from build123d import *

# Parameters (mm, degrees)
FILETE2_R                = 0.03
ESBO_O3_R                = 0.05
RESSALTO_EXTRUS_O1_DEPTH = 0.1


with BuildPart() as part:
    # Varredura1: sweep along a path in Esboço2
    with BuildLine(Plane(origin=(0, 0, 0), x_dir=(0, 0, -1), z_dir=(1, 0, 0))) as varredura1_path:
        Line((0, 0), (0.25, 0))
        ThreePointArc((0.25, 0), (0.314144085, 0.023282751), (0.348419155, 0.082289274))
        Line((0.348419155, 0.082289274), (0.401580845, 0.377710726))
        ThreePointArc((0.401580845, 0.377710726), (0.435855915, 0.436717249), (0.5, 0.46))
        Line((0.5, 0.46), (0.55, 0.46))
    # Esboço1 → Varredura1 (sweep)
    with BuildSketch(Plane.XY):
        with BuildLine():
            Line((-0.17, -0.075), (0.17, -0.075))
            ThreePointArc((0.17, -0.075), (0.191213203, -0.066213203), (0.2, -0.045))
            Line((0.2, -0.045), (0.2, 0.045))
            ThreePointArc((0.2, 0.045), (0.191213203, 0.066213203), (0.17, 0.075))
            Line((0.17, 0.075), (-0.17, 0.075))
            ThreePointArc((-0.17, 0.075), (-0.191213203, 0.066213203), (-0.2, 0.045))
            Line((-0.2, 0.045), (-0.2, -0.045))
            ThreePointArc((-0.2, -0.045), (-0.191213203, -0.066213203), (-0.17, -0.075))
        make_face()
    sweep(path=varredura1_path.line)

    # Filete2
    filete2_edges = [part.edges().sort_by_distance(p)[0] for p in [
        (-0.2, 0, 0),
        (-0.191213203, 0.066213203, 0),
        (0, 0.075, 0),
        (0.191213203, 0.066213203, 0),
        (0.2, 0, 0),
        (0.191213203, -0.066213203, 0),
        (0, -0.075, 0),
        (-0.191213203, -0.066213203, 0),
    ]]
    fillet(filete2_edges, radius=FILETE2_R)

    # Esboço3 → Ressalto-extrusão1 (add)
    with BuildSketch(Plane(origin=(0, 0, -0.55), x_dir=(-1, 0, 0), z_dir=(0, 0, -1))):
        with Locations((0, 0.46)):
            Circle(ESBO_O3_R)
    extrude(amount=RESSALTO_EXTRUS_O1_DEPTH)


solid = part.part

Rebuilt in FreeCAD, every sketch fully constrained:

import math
import FreeCAD as App
import Part
import Sketcher
Q = App.Units.Quantity


def edges_at(feature, points):
    """Names of the edges that pass closest to the given points."""
    edges = feature.Shape.Edges
    near = lambda p: min(range(len(edges)), key=lambda i: edges[i].distToShape(Part.Vertex(*p))[0])
    return sorted({f"Edge{near(p) + 1}" for p in points})

doc = App.newDocument("Part")
params = doc.addObject("Spreadsheet::Sheet", "Params")
for row, (alias, value) in enumerate([
    ("sketch1_radius", "0.03 mm"),
    ("sketch1_width", "0.34 mm"),
    ("sketch1_height", "0.09 mm"),
    ("sketch2_radius", "0.1 mm"),
    ("sketch2_height", "0.25 mm"),
    ("sketch2_height2", "0.05 mm"),
    ("fillet_radius", "0.03 mm"),
    ("sketch3_diameter", "0.1 mm"),
    ("pad1_length", "0.1 mm"),
], start=1):
    params.set(f"A{row}", alias)
    params.set(f"B{row}", "=" + value)
    params.setAlias(f"B{row}", alias)

body = doc.addObject("PartDesign::Body", "Body")

# Sketch on XY plane
sketch1 = body.newObject("Sketcher::SketchObject", "Sketch")
sketch1.AttachmentSupport = (doc.getObject("XY_Plane"), [""])
sketch1.MapMode = "FlatFace"
sketch1.addGeometry([
    Part.LineSegment(App.Vector(-0.17, -0.075, 0), App.Vector(0.17, -0.075, 0)),  # 0
    Part.ArcOfCircle(Part.Circle(App.Vector(0.17, -0.045, 0), App.Vector(0, 0, 1), 0.03), math.radians(-89.999998), math.radians(-0.000002)),  # 1
    Part.LineSegment(App.Vector(0.2, -0.045, 0), App.Vector(0.2, 0.045, 0)),  # 2
    Part.ArcOfCircle(Part.Circle(App.Vector(0.17, 0.045, 0), App.Vector(0, 0, 1), 0.03), math.radians(0.000002), math.radians(89.999998)),  # 3
    Part.LineSegment(App.Vector(0.17, 0.075, 0), App.Vector(-0.17, 0.075, 0)),  # 4
    Part.ArcOfCircle(Part.Circle(App.Vector(-0.17, 0.045, 0), App.Vector(0, 0, 1), 0.03), math.radians(90.000002), math.radians(179.999998)),  # 5
    Part.LineSegment(App.Vector(-0.2, 0.045, 0), App.Vector(-0.2, -0.045, 0)),  # 6
    Part.ArcOfCircle(Part.Circle(App.Vector(-0.17, -0.045, 0), App.Vector(0, 0, 1), 0.03), math.radians(-179.999998), math.radians(-90.000002)),  # 7
], False)
sketch1.addConstraint([
    Sketcher.Constraint("Tangent", 0, 2, 1, 1),
    Sketcher.Constraint("Tangent", 1, 2, 2, 1),
    Sketcher.Constraint("Tangent", 2, 2, 3, 1),
    Sketcher.Constraint("Tangent", 3, 2, 4, 1),
    Sketcher.Constraint("Tangent", 4, 2, 5, 1),
    Sketcher.Constraint("Tangent", 5, 2, 6, 1),
    Sketcher.Constraint("Tangent", 6, 2, 7, 1),
    Sketcher.Constraint("Tangent", 7, 2, 0, 1),
    Sketcher.Constraint("Horizontal", 0),
    Sketcher.Constraint("Vertical", 2),
    Sketcher.Constraint("Horizontal", 4),
    Sketcher.Constraint("Vertical", 6),
    Sketcher.Constraint("Equal", 1, 3),
    Sketcher.Constraint("Equal", 3, 5),
    Sketcher.Constraint("Equal", 5, 7),
    Sketcher.Constraint("Symmetric", 1, 3, 5, 3, -1, 1),
    Sketcher.Constraint("Radius", 1, Q("0.03 mm")),
    Sketcher.Constraint("DistanceX", 0, 1, 0, 2, Q("0.34 mm")),
    Sketcher.Constraint("DistanceY", 2, 1, 2, 2, Q("0.09 mm")),
])
sketch1.setExpression("Constraints[16]", "Params.sketch1_radius")
sketch1.setExpression("Constraints[17]", "Params.sketch1_width")
sketch1.setExpression("Constraints[18]", "Params.sketch1_height")

# Sketch on YZ plane
sketch2 = body.newObject("Sketcher::SketchObject", "Sketch001")
sketch2.AttachmentSupport = (doc.getObject("YZ_Plane"), [""])
sketch2.MapMode = "FlatFace"
sketch2.addGeometry([
    Part.LineSegment(App.Vector(0, 0, 0), App.Vector(0, -0.25, 0)),  # 0
    Part.ArcOfCircle(Part.Circle(App.Vector(0.1, -0.25, 0), App.Vector(0, 0, 1), 0.1), math.radians(180), math.radians(259.798689)),  # 1
    Part.LineSegment(App.Vector(0.082289, -0.348419, 0), App.Vector(0.377711, -0.401581, 0)),  # 2
    Part.ArcOfCircle(Part.Circle(App.Vector(0.36, -0.5, 0), App.Vector(0, 0, 1), 0.1), math.radians(0), math.radians(79.798689)),  # 3
    Part.LineSegment(App.Vector(0.46, -0.5, 0), App.Vector(0.46, -0.55, 0)),  # 4
], False)
sketch2.addConstraint([
    Sketcher.Constraint("Tangent", 0, 2, 1, 1),
    Sketcher.Constraint("Tangent", 1, 2, 2, 1),
    Sketcher.Constraint("Tangent", 2, 2, 3, 2),
    Sketcher.Constraint("Tangent", 3, 1, 4, 1),
    Sketcher.Constraint("Vertical", 0),
    Sketcher.Constraint("Vertical", 4),
    Sketcher.Constraint("Coincident", 0, 1, -1, 1),
    Sketcher.Constraint("Equal", 1, 3),
    Sketcher.Constraint("Radius", 1, Q("0.1 mm")),
    Sketcher.Constraint("DistanceY", 0, 2, 0, 1, Q("0.25 mm")),
    Sketcher.Constraint("DistanceY", 4, 2, 4, 1, Q("0.05 mm")),
    Sketcher.Constraint("DistanceY", 3, 3, -1, 1, Q("0.5 mm")),
    Sketcher.Constraint("DistanceX", -1, 1, 3, 3, Q("0.36 mm")),
])
sketch2.setExpression("Constraints[8]", "Params.sketch2_radius")
sketch2.setExpression("Constraints[9]", "Params.sketch2_height")
sketch2.setExpression("Constraints[10]", "Params.sketch2_height2")
doc.recompute()

additivepipe = body.newObject("PartDesign::AdditivePipe", "AdditivePipe")
additivepipe.Profile = sketch1
additivepipe.Spine = (sketch2, ["Edge1", "Edge2", "Edge3", "Edge4", "Edge5"])
doc.recompute()

fillet = body.newObject("PartDesign::Fillet", "Fillet")
fillet.Base = (additivepipe, edges_at(additivepipe, [
    (-0.2, 0, 0),
    (-0.191, 0.066, 0),
    (0, 0.075, 0),
    (0.191, 0.066, 0),
    (0.2, 0, 0),
    (0.191, -0.066, 0),
    (0, -0.075, 0),
    (-0.191, -0.066, 0),
]))
fillet.setExpression("Radius", "Params.fillet_radius")

# Sketch on XY plane
sketch3 = body.newObject("Sketcher::SketchObject", "Sketch002")
sketch3.AttachmentSupport = (doc.getObject("XY_Plane"), [""])
sketch3.MapMode = "FlatFace"
sketch3.AttachmentOffset = App.Placement(App.Vector(0, 0, -0.55), App.Rotation())
sketch3.addGeometry(Part.Circle(App.Vector(0, 0.46, 0), App.Vector(0, 0, 1), 0.05), False)
sketch3.addConstraint([
    Sketcher.Constraint("PointOnObject", 0, 3, -2),
    Sketcher.Constraint("Diameter", 0, Q("0.1 mm")),
    Sketcher.Constraint("DistanceY", -1, 1, 0, 3, Q("0.46 mm")),
])
sketch3.setExpression("Constraints[1]", "Params.sketch3_diameter")
pad1 = body.newObject("PartDesign::Pad", "Pad")
pad1.Profile = sketch3
pad1.setExpression("Length", "Params.pad1_length")
pad1.Reversed = True

doc.recompute()
